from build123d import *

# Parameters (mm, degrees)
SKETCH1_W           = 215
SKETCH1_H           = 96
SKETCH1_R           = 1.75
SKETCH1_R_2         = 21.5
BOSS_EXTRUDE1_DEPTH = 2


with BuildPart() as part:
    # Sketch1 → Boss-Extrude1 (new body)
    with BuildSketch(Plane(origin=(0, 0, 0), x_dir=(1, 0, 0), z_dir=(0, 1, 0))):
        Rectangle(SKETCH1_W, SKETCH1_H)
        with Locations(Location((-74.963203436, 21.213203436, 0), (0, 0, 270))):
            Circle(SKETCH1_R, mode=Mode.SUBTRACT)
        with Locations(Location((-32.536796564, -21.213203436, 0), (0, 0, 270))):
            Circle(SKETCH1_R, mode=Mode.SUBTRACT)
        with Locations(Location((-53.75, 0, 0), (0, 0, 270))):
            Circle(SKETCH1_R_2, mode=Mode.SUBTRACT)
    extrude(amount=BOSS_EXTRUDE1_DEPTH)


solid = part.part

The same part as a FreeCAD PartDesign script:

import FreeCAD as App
import Part
import Sketcher

V = App.Vector


def add_polygon(sketch, points):
    """Adds a closed chain of lines whose ends are joined by coincident constraints."""
    first, n = sketch.GeometryCount, len(points)
    for a, b in zip(points, points[1:] + points[:1]):
        sketch.addGeometry(Part.LineSegment(App.Vector(*a, 0), App.Vector(*b, 0)), False)
    for i in range(n):
        sketch.addConstraint(Sketcher.Constraint("Coincident", first + i, 2, first + (i + 1) % n, 1))

doc = App.newDocument("Part")
body = doc.addObject("PartDesign::Body", "Body")

sketch1 = body.newObject("Sketcher::SketchObject", "Sketch")
sketch1.AttachmentSupport = (doc.getObject("XZ_Plane"), [""])
sketch1.MapMode = "FlatFace"
add_polygon(sketch1, [(-107.5, -48), (-107.5, 48), (107.5, 48), (107.5, -48)])
sketch1.addGeometry(Part.Circle(V(-32.5, 21.2, 0), V(0, 0, 1), 1.8), False)
sketch1.addGeometry(Part.Circle(V(-75, -21.2, 0), V(0, 0, 1), 1.8), False)
sketch1.addGeometry(Part.Circle(V(-53.8, 0, 0), V(0, 0, 1), 21.5), False)
sketch1.addConstraint([
    Sketcher.Constraint("Vertical", 0),
    Sketcher.Constraint("Horizontal", 1),
    Sketcher.Constraint("Vertical", 2),
    Sketcher.Constraint("Horizontal", 3),
    Sketcher.Constraint("Equal", 4, 5),
    Sketcher.Constraint("Symmetric", 0, 2, 2, 2, -1, 1),
    Sketcher.Constraint("PointOnObject", 6, 3, -1),
    Sketcher.Constraint("Diameter", 6, 43.0),
    Sketcher.Constraint("Diameter", 4, 3.5),
    Sketcher.Constraint("DistanceX", 1, 1, 1, 2, 215.0),
    Sketcher.Constraint("DistanceY", 0, 1, 0, 2, 96.0),
    Sketcher.Constraint("DistanceX", 6, 3, -1, 1, 53.75),
    Sketcher.Constraint("DistanceX", 4, 3, -1, 1, 32.536797),
    Sketcher.Constraint("DistanceY", -1, 1, 4, 3, 21.213203),
    Sketcher.Constraint("DistanceX", 5, 3, -1, 1, 74.963203),
    Sketcher.Constraint("DistanceY", 5, 3, -1, 1, 21.213203),
])
pad1 = body.newObject("PartDesign::Pad", "Pad")
pad1.Profile = sketch1
pad1.Length = 2
pad1.Reversed = True

doc.recompute()
